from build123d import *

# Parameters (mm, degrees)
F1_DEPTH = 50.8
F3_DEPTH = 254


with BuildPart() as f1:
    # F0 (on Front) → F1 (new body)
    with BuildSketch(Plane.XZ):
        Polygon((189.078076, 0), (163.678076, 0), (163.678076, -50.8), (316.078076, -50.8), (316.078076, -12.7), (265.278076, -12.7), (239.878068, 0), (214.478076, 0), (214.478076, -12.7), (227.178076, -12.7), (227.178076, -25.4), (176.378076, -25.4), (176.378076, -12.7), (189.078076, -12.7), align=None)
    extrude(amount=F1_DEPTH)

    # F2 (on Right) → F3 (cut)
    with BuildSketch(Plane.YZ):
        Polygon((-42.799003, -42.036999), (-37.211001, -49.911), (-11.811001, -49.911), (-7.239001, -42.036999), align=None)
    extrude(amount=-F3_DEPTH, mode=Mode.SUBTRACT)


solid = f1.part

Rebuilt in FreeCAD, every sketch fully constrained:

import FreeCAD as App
import Part
import Sketcher

V = App.Vector
Q = App.Units.Quantity


def add_polygon(sketch, points):
    """Adds a closed chain of lines whose ends are joined by coincident constraints."""
    first, n = sketch.GeometryCount, len(points)
    for a, b in zip(points, points[1:] + points[:1]):
        sketch.addGeometry(Part.LineSegment(App.Vector(*a, 0), App.Vector(*b, 0)), False)
    for i in range(n):
        sketch.addConstraint(Sketcher.Constraint("Coincident", first + i, 2, first + (i + 1) % n, 1))

doc = App.newDocument("Part")
body = doc.addObject("PartDesign::Body", "Body")

# Sketch on XZ plane
sketch1 = body.newObject("Sketcher::SketchObject", "Sketch")
sketch1.AttachmentSupport = (doc.getObject("XZ_Plane"), [""])
sketch1.MapMode = "FlatFace"
add_polygon(sketch1, [(189, 0), (164, 0), (164, -51), (316, -51), (316, -13), (265, -13), (240, 0), (214, 0), (214, -13), (227, -13), (227, -25), (176, -25), (176, -13), (189, -13)])  # lines 0-13
sketch1.addConstraint([
    Sketcher.Constraint("Horizontal", 0),
    Sketcher.Constraint("Vertical", 1),
    Sketcher.Constraint("Horizontal", 2),
    Sketcher.Constraint("Vertical", 3),
    Sketcher.Constraint("Horizontal", 4),
    Sketcher.Constraint("Horizontal", 6),
    Sketcher.Constraint("Vertical", 7),
    Sketcher.Constraint("Horizontal", 8),
    Sketcher.Constraint("Vertical", 9),
    Sketcher.Constraint("Horizontal", 10),
    Sketcher.Constraint("Vertical", 11),
    Sketcher.Constraint("Horizontal", 12),
    Sketcher.Constraint("Vertical", 13),
    Sketcher.Constraint("PointOnObject", 0, 2, -1),
    Sketcher.Constraint("PointOnObject", 5, 2, -1),
    Sketcher.Constraint("Horizontal", 4, 2, 7, 2),
    Sketcher.Constraint("Horizontal", 8, 2, 11, 2),
    Sketcher.Constraint("Equal", 4, 10),
    Sketcher.Constraint("Equal", 8, 12),
    Sketcher.Constraint("Equal", 10, 1),
    Sketcher.Constraint("Equal", 12, 7),
    Sketcher.Constraint("Equal", 7, 9),
    Sketcher.Constraint("DistanceX", 0, 2, 0, 1, Q("1 in")),
    Sketcher.Constraint("DistanceX", 2, 1, 2, 2, Q("6 in")),
    Sketcher.Constraint("DistanceX", 4, 2, 4, 1, Q("2 in")),
    Sketcher.Constraint("DistanceX", 8, 1, 8, 2, Q("0.5 in")),
    Sketcher.Constraint("Distance", 5, 28.39807),
    Sketcher.Constraint("DistanceX", -1, 1, 5, 2, 239.878068),
])
pad1 = body.newObject("PartDesign::Pad", "Pad")
pad1.Profile = sketch1
pad1.Length = Q("2 in")

# Sketch on YZ plane
sketch2 = body.newObject("Sketcher::SketchObject", "Sketch001")
sketch2.AttachmentSupport = (doc.getObject("YZ_Plane"), [""])
sketch2.MapMode = "FlatFace"
add_polygon(sketch2, [(-43, -42), (-37, -50), (-12, -50), (-7, -42)])  # lines 0-3
sketch2.addConstraint([
    Sketcher.Constraint("Horizontal", 1),
    Sketcher.Constraint("Horizontal", 3),
    Sketcher.Constraint("DistanceX", 1, 1, 1, 2, Q("1 in")),
    Sketcher.Constraint("DistanceX", 3, 2, 3, 1, Q("1.4000001 in")),
    Sketcher.Constraint("DistanceX", 1, 2, 2, 2, Q("0.18 in")),
    Sketcher.Constraint("DistanceY", 1, 2, 2, 2, Q("0.31 in")),
    Sketcher.Constraint("DistanceX", 0, 2, -1, 1, Q("1.465 in")),
    Sketcher.Constraint("DistanceY", 0, 2, -1, 1, Q("1.965 in")),
])
pocket1 = body.newObject("PartDesign::Pocket", "Pocket")
pocket1.Profile = sketch2
pocket1.Length = Q("10 in")

doc.recompute()
